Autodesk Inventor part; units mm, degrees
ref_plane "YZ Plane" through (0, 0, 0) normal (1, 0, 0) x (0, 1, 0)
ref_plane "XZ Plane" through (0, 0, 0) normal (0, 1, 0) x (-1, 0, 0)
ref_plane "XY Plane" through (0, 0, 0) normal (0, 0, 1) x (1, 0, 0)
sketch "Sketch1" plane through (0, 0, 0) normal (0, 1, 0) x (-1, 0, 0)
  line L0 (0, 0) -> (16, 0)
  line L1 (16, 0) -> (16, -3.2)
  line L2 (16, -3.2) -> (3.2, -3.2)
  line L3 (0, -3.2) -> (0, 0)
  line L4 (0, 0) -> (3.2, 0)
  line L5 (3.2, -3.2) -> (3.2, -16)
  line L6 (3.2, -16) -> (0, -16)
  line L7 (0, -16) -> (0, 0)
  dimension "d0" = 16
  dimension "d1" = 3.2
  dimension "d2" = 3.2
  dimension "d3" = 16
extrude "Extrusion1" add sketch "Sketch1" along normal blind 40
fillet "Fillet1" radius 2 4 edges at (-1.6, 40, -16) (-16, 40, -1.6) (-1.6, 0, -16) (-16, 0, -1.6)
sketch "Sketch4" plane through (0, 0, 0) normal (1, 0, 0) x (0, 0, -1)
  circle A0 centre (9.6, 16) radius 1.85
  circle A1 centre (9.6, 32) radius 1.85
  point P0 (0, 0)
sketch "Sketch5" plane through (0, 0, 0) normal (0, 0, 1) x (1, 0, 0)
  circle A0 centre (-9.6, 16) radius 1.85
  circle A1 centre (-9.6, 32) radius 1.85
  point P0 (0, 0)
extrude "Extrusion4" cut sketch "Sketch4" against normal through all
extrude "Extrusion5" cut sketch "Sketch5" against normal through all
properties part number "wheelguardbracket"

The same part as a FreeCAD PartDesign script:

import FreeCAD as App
import Part
import Sketcher


def edges_at(feature, points):
    """Names of the edges that pass closest to the given points."""
    edges = feature.Shape.Edges
    near = lambda p: min(range(len(edges)), key=lambda i: edges[i].distToShape(Part.Vertex(*p))[0])
    return sorted({f"Edge{near(p) + 1}" for p in points})

doc = App.newDocument("Part")
body = doc.addObject("PartDesign::Body", "Body")

# Sketch on XZ plane
sketch1 = body.newObject("Sketcher::SketchObject", "Sketch")
sketch1.AttachmentSupport = (doc.getObject("XZ_Plane"), [""])
sketch1.MapMode = "FlatFace"
sketch1.addGeometry([
    Part.LineSegment(App.Vector(-16, 0, 0), App.Vector(0, 0, 0)),  # 0
    Part.LineSegment(App.Vector(0, 0, 0), App.Vector(0, -16, 0)),  # 1
    Part.LineSegment(App.Vector(0, -16, 0), App.Vector(-3.2, -16, 0)),  # 2
    Part.LineSegment(App.Vector(-3.2, -16, 0), App.Vector(-3.2, -3.2, 0)),  # 3
    Part.LineSegment(App.Vector(-3.2, -3.2, 0), App.Vector(-16, -3.2, 0)),  # 4
    Part.LineSegment(App.Vector(-16, -3.2, 0), App.Vector(-16, 0, 0)),  # 5
], False)
sketch1.addConstraint([
    Sketcher.Constraint("Coincident", 0, 2, 1, 1),
    Sketcher.Constraint("Coincident", 1, 2, 2, 1),
    Sketcher.Constraint("Coincident", 2, 2, 3, 1),
    Sketcher.Constraint("Coincident", 3, 2, 4, 1),
    Sketcher.Constraint("Coincident", 4, 2, 5, 1),
    Sketcher.Constraint("Coincident", 5, 2, 0, 1),
    Sketcher.Constraint("Horizontal", 0),
    Sketcher.Constraint("Vertical", 1),
    Sketcher.Constraint("Horizontal", 2),
    Sketcher.Constraint("Vertical", 3),
    Sketcher.Constraint("Horizontal", 4),
    Sketcher.Constraint("Vertical", 5),
    Sketcher.Constraint("Coincident", 0, 2, -1, 1),
    Sketcher.Constraint("Equal", 0, 1),
    Sketcher.Constraint("Equal", 4, 3),
    Sketcher.Constraint("DistanceX", 0, 1, 0, 2, 16.0),
    Sketcher.Constraint("DistanceX", 2, 2, 2, 1, 3.2),
])
pad1 = body.newObject("PartDesign::Pad", "Pad")
pad1.Profile = sketch1
pad1.Length = 40
pad1.Reversed = True
doc.recompute()

fillet = body.newObject("PartDesign::Fillet", "Fillet")
fillet.Base = (pad1, edges_at(pad1, [
    (-1.6, 40, -16),
    (-16, 40, -1.6),
    (-1.6, 0, -16),
    (-16, 0, -1.6),
]))
fillet.Radius = 2

# Sketch on YZ plane
sketch2 = body.newObject("Sketcher::SketchObject", "Sketch001")
sketch2.AttachmentSupport = (doc.getObject("YZ_Plane"), [""])
sketch2.MapMode = "FlatFace"
sketch2.addGeometry([
    Part.Circle(App.Vector(16, -9.6, 0), App.Vector(0, 0, 1), 1.9),
    Part.Circle(App.Vector(32, -9.6, 0), App.Vector(0, 0, 1), 1.9),
], False)
sketch2.addConstraint([
    Sketcher.Constraint("Equal", 0, 1),
    Sketcher.Constraint("Horizontal", 0, 3, 1, 3),
    Sketcher.Constraint("Diameter", 0, 3.7),
    Sketcher.Constraint("DistanceX", -1, 1, 0, 3, 16.0),
    Sketcher.Constraint("DistanceX", -1, 1, 1, 3, 32.0),
    Sketcher.Constraint("DistanceY", 0, 3, -1, 1, 9.6),
])
pocket1 = body.newObject("PartDesign::Pocket", "Pocket")
pocket1.Profile = sketch2
pocket1.Type = "ThroughAll"

# Sketch on XY plane
sketch3 = body.newObject("Sketcher::SketchObject", "Sketch002")
sketch3.AttachmentSupport = (doc.getObject("XY_Plane"), [""])
sketch3.MapMode = "FlatFace"
sketch3.addGeometry([
    Part.Circle(App.Vector(-9.6, 16, 0), App.Vector(0, 0, 1), 1.9),
    Part.Circle(App.Vector(-9.6, 32, 0), App.Vector(0, 0, 1), 1.9),
], False)
sketch3.addConstraint([
    Sketcher.Constraint("Equal", 0, 1),
    Sketcher.Constraint("Vertical", 0, 3, 1, 3),
    Sketcher.Constraint("Diameter", 0, 3.7),
    Sketcher.Constraint("DistanceY", -1, 1, 0, 3, 16.0),
    Sketcher.Constraint("DistanceY", -1, 1, 1, 3, 32.0),
    Sketcher.Constraint("DistanceX", 0, 3, -1, 1, 9.6),
])
pocket2 = body.newObject("PartDesign::Pocket", "Pocket001")
pocket2.Profile = sketch3
pocket2.Type = "ThroughAll"

doc.recompute()
